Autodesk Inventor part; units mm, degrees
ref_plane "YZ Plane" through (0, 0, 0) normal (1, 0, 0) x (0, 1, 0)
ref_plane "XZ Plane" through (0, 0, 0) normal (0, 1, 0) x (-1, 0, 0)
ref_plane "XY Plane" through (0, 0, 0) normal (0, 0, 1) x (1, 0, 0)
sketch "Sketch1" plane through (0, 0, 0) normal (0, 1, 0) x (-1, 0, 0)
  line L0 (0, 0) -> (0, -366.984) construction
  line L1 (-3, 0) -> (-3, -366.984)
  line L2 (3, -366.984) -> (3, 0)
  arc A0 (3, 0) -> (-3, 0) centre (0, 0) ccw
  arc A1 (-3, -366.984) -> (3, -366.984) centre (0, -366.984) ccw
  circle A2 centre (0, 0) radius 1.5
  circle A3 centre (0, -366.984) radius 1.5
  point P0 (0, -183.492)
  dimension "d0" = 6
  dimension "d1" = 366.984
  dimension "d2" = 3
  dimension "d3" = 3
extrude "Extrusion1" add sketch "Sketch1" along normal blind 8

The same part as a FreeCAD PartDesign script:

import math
import FreeCAD as App
import Part
import Sketcher

V = App.Vector
Q = App.Units.Quantity

doc = App.newDocument("Part")
body = doc.addObject("PartDesign::Body", "Body")

sketch1 = doc.addObject("Sketcher::SketchObject", "Sketch")
body.addObject(sketch1)
sketch1.AttachmentSupport = (doc.XZ_Plane, [""])
sketch1.MapMode = "FlatFace"
sketch1.addGeometry([
    Part.ArcOfCircle(Part.Circle(V(0, 0, 0), V(0, 0, 1), 3), math.radians(0), math.radians(180)),
    Part.LineSegment(V(3, 0, 0), V(3, -367, 0)),
    Part.ArcOfCircle(Part.Circle(V(0, -367, 0), V(0, 0, 1), 3), math.radians(180), math.radians(360)),
    Part.LineSegment(V(-3, -367, 0), V(-3, 0, 0)),
    Part.Circle(V(0, -367, 0), V(0, 0, 1), 1.5),
    Part.Circle(V(0, 0, 0), V(0, 0, 1), 1.5),
], False)
sketch1.addConstraint([
    Sketcher.Constraint("Tangent", 0, 1, 1, 1),
    Sketcher.Constraint("Tangent", 1, 2, 2, 2),
    Sketcher.Constraint("Tangent", 2, 1, 3, 1),
    Sketcher.Constraint("Tangent", 3, 2, 0, 2),
    Sketcher.Constraint("Vertical", 1),
    Sketcher.Constraint("Vertical", 3),
    Sketcher.Constraint("Coincident", 0, 3, -1, 1),
    Sketcher.Constraint("Coincident", 5, 3, -1, 1),
    Sketcher.Constraint("Coincident", 4, 3, 2, 3),
    Sketcher.Constraint("Equal", 4, 5),
    Sketcher.Constraint("Diameter", 4, Q("3 mm")),
    Sketcher.Constraint("Radius", 0, Q("3 mm")),
    Sketcher.Constraint("DistanceY", 1, 2, 1, 1, Q("366.984 mm")),
])
pad1 = doc.addObject("PartDesign::Pad", "Pad")
body.addObject(pad1)
pad1.Profile = sketch1
pad1.Length = 8
pad1.Reversed = True

doc.recompute()
